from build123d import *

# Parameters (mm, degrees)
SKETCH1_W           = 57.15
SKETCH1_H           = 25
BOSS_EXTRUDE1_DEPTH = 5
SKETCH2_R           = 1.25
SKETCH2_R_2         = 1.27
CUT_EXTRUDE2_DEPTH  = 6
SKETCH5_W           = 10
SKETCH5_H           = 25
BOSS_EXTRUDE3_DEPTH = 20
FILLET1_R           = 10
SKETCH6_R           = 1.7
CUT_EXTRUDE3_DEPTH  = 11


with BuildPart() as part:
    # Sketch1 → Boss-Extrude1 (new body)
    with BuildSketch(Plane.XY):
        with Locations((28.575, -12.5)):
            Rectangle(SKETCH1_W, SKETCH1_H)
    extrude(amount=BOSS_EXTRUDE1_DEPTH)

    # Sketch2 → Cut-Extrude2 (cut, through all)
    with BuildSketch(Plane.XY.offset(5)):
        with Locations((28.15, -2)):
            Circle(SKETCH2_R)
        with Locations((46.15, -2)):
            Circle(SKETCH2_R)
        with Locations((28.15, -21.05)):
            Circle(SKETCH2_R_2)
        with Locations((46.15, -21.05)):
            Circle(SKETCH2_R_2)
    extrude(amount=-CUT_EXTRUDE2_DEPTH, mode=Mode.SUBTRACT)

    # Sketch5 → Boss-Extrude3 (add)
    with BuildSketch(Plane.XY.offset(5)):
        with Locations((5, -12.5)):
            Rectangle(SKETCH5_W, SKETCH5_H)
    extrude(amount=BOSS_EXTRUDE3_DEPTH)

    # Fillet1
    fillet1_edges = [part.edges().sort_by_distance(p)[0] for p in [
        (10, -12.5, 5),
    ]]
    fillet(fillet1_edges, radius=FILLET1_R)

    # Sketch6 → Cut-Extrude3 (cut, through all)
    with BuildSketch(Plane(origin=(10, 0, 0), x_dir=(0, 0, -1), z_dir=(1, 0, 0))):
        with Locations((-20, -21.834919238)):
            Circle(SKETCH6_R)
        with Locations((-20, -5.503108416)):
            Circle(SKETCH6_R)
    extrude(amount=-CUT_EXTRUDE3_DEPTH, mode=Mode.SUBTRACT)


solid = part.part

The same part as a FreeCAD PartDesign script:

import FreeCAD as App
import Part
import Sketcher
Q = App.Units.Quantity


def edges_at(feature, points):
    """Names of the edges that pass closest to the given points."""
    edges = feature.Shape.Edges
    near = lambda p: min(range(len(edges)), key=lambda i: edges[i].distToShape(Part.Vertex(*p))[0])
    return sorted({f"Edge{near(p) + 1}" for p in points})


def add_polygon(sketch, points):
    """Adds a closed chain of lines whose ends are joined by coincident constraints."""
    first, n = sketch.GeometryCount, len(points)
    for a, b in zip(points, points[1:] + points[:1]):
        sketch.addGeometry(Part.LineSegment(App.Vector(*a, 0), App.Vector(*b, 0)), False)
    for i in range(n):
        sketch.addConstraint(Sketcher.Constraint("Coincident", first + i, 2, first + (i + 1) % n, 1))

doc = App.newDocument("Part")
body = doc.addObject("PartDesign::Body", "Body")

sketch1 = body.newObject("Sketcher::SketchObject", "Sketch")
sketch1.AttachmentSupport = (doc.getObject("XY_Plane"), [""])
sketch1.MapMode = "FlatFace"
add_polygon(sketch1, [(0, 0), (0, -25), (57.15, -25), (57.15, 0)])
sketch1.addConstraint(Sketcher.Constraint("Vertical", 0))
sketch1.addConstraint(Sketcher.Constraint("Horizontal", 1))
sketch1.addConstraint(Sketcher.Constraint("Vertical", 2))
sketch1.addConstraint(Sketcher.Constraint("Horizontal", 3))
sketch1.addConstraint(Sketcher.Constraint("Coincident", 3, 2, -1, 1))
sketch1.addConstraint(Sketcher.Constraint("DistanceY", 0, 2, 0, 1, Q("25 mm")))
sketch1.addConstraint(Sketcher.Constraint("DistanceX", 1, 1, 1, 2, Q("57.15 mm")))
pad1 = body.newObject("PartDesign::Pad", "Pad")
pad1.Profile = sketch1
pad1.Length = 5

sketch2 = body.newObject("Sketcher::SketchObject", "Sketch001")
sketch2.AttachmentSupport = (doc.getObject("XY_Plane"), [""])
sketch2.MapMode = "FlatFace"
sketch2.AttachmentOffset = App.Placement(App.Vector(0, 0, 5), App.Rotation())
sketch2.addGeometry(Part.Circle(App.Vector(28.15, -2, 0), App.Vector(0, 0, 1), 1.25), False)
sketch2.addGeometry(Part.Circle(App.Vector(46.15, -2, 0), App.Vector(0, 0, 1), 1.25), False)
sketch2.addGeometry(Part.Circle(App.Vector(28.15, -21.05, 0), App.Vector(0, 0, 1), 1.27), False)
sketch2.addGeometry(Part.Circle(App.Vector(46.15, -21.05, 0), App.Vector(0, 0, 1), 1.27), False)
sketch2.addConstraint(Sketcher.Constraint("Equal", 0, 1))
sketch2.addConstraint(Sketcher.Constraint("Equal", 2, 3))
sketch2.addConstraint(Sketcher.Constraint("Horizontal", 0, 3, 1, 3))
sketch2.addConstraint(Sketcher.Constraint("Horizontal", 2, 3, 3, 3))
sketch2.addConstraint(Sketcher.Constraint("Vertical", 0, 3, 2, 3))
sketch2.addConstraint(Sketcher.Constraint("Vertical", 1, 3, 3, 3))
sketch2.addConstraint(Sketcher.Constraint("Diameter", 0, Q("2.5 mm")))
sketch2.addConstraint(Sketcher.Constraint("Diameter", 2, Q("2.54 mm")))
sketch2.addConstraint(Sketcher.Constraint("DistanceY", 0, 3, -1, 1, Q("2 mm")))
sketch2.addConstraint(Sketcher.Constraint("DistanceX", 0, 3, 1, 3, Q("18 mm")))
sketch2.addConstraint(Sketcher.Constraint("DistanceX", -1, 1, 0, 3, Q("28.15 mm")))
sketch2.addConstraint(Sketcher.Constraint("DistanceY", 2, 3, -1, 1, Q("21.05 mm")))
pocket1 = body.newObject("PartDesign::Pocket", "Pocket")
pocket1.Profile = sketch2
pocket1.Type = "ThroughAll"

sketch3 = body.newObject("Sketcher::SketchObject", "Sketch002")
sketch3.AttachmentSupport = (doc.getObject("XY_Plane"), [""])
sketch3.MapMode = "FlatFace"
sketch3.AttachmentOffset = App.Placement(App.Vector(0, 0, 5), App.Rotation())
add_polygon(sketch3, [(0, 0), (0, -25), (10, -25), (10, 0)])
sketch3.addConstraint(Sketcher.Constraint("Vertical", 0))
sketch3.addConstraint(Sketcher.Constraint("Horizontal", 1))
sketch3.addConstraint(Sketcher.Constraint("Vertical", 2))
sketch3.addConstraint(Sketcher.Constraint("Horizontal", 3))
sketch3.addConstraint(Sketcher.Constraint("Coincident", 3, 2, -1, 1))
sketch3.addConstraint(Sketcher.Constraint("DistanceX", 1, 1, 1, 2, Q("10 mm")))
sketch3.addConstraint(Sketcher.Constraint("DistanceY", 0, 2, 0, 1, Q("25 mm")))
pad2 = body.newObject("PartDesign::Pad", "Pad001")
pad2.Profile = sketch3
pad2.Length = 20
doc.recompute()

fillet = body.newObject("PartDesign::Fillet", "Fillet")
fillet.Base = (pad2, edges_at(pad2, [(10, -12.5, 5)]))
fillet.Radius = 10

sketch4 = body.newObject("Sketcher::SketchObject", "Sketch003")
sketch4.AttachmentSupport = (doc.getObject("YZ_Plane"), [""])
sketch4.MapMode = "FlatFace"
sketch4.AttachmentOffset = App.Placement(App.Vector(0, 0, 10), App.Rotation())
sketch4.addGeometry(Part.Circle(App.Vector(-21.834919, 20, 0), App.Vector(0, 0, 1), 1.7), False)
sketch4.addGeometry(Part.Circle(App.Vector(-5.503108, 20, 0), App.Vector(0, 0, 1), 1.7), False)
sketch4.addConstraint(Sketcher.Constraint("Equal", 0, 1))
sketch4.addConstraint(Sketcher.Constraint("Horizontal", 0, 3, 1, 3))
sketch4.addConstraint(Sketcher.Constraint("Diameter", 0, Q("3.4 mm")))
sketch4.addConstraint(Sketcher.Constraint("DistanceY", -1, 1, 0, 3, Q("20 mm")))
sketch4.addConstraint(Sketcher.Constraint("DistanceX", 0, 3, -1, 1, Q("21.834919 mm")))
sketch4.addConstraint(Sketcher.Constraint("DistanceX", 1, 3, -1, 1, Q("5.503108 mm")))
pocket2 = body.newObject("PartDesign::Pocket", "Pocket001")
pocket2.Profile = sketch4
pocket2.Type = "ThroughAll"

doc.recompute()
